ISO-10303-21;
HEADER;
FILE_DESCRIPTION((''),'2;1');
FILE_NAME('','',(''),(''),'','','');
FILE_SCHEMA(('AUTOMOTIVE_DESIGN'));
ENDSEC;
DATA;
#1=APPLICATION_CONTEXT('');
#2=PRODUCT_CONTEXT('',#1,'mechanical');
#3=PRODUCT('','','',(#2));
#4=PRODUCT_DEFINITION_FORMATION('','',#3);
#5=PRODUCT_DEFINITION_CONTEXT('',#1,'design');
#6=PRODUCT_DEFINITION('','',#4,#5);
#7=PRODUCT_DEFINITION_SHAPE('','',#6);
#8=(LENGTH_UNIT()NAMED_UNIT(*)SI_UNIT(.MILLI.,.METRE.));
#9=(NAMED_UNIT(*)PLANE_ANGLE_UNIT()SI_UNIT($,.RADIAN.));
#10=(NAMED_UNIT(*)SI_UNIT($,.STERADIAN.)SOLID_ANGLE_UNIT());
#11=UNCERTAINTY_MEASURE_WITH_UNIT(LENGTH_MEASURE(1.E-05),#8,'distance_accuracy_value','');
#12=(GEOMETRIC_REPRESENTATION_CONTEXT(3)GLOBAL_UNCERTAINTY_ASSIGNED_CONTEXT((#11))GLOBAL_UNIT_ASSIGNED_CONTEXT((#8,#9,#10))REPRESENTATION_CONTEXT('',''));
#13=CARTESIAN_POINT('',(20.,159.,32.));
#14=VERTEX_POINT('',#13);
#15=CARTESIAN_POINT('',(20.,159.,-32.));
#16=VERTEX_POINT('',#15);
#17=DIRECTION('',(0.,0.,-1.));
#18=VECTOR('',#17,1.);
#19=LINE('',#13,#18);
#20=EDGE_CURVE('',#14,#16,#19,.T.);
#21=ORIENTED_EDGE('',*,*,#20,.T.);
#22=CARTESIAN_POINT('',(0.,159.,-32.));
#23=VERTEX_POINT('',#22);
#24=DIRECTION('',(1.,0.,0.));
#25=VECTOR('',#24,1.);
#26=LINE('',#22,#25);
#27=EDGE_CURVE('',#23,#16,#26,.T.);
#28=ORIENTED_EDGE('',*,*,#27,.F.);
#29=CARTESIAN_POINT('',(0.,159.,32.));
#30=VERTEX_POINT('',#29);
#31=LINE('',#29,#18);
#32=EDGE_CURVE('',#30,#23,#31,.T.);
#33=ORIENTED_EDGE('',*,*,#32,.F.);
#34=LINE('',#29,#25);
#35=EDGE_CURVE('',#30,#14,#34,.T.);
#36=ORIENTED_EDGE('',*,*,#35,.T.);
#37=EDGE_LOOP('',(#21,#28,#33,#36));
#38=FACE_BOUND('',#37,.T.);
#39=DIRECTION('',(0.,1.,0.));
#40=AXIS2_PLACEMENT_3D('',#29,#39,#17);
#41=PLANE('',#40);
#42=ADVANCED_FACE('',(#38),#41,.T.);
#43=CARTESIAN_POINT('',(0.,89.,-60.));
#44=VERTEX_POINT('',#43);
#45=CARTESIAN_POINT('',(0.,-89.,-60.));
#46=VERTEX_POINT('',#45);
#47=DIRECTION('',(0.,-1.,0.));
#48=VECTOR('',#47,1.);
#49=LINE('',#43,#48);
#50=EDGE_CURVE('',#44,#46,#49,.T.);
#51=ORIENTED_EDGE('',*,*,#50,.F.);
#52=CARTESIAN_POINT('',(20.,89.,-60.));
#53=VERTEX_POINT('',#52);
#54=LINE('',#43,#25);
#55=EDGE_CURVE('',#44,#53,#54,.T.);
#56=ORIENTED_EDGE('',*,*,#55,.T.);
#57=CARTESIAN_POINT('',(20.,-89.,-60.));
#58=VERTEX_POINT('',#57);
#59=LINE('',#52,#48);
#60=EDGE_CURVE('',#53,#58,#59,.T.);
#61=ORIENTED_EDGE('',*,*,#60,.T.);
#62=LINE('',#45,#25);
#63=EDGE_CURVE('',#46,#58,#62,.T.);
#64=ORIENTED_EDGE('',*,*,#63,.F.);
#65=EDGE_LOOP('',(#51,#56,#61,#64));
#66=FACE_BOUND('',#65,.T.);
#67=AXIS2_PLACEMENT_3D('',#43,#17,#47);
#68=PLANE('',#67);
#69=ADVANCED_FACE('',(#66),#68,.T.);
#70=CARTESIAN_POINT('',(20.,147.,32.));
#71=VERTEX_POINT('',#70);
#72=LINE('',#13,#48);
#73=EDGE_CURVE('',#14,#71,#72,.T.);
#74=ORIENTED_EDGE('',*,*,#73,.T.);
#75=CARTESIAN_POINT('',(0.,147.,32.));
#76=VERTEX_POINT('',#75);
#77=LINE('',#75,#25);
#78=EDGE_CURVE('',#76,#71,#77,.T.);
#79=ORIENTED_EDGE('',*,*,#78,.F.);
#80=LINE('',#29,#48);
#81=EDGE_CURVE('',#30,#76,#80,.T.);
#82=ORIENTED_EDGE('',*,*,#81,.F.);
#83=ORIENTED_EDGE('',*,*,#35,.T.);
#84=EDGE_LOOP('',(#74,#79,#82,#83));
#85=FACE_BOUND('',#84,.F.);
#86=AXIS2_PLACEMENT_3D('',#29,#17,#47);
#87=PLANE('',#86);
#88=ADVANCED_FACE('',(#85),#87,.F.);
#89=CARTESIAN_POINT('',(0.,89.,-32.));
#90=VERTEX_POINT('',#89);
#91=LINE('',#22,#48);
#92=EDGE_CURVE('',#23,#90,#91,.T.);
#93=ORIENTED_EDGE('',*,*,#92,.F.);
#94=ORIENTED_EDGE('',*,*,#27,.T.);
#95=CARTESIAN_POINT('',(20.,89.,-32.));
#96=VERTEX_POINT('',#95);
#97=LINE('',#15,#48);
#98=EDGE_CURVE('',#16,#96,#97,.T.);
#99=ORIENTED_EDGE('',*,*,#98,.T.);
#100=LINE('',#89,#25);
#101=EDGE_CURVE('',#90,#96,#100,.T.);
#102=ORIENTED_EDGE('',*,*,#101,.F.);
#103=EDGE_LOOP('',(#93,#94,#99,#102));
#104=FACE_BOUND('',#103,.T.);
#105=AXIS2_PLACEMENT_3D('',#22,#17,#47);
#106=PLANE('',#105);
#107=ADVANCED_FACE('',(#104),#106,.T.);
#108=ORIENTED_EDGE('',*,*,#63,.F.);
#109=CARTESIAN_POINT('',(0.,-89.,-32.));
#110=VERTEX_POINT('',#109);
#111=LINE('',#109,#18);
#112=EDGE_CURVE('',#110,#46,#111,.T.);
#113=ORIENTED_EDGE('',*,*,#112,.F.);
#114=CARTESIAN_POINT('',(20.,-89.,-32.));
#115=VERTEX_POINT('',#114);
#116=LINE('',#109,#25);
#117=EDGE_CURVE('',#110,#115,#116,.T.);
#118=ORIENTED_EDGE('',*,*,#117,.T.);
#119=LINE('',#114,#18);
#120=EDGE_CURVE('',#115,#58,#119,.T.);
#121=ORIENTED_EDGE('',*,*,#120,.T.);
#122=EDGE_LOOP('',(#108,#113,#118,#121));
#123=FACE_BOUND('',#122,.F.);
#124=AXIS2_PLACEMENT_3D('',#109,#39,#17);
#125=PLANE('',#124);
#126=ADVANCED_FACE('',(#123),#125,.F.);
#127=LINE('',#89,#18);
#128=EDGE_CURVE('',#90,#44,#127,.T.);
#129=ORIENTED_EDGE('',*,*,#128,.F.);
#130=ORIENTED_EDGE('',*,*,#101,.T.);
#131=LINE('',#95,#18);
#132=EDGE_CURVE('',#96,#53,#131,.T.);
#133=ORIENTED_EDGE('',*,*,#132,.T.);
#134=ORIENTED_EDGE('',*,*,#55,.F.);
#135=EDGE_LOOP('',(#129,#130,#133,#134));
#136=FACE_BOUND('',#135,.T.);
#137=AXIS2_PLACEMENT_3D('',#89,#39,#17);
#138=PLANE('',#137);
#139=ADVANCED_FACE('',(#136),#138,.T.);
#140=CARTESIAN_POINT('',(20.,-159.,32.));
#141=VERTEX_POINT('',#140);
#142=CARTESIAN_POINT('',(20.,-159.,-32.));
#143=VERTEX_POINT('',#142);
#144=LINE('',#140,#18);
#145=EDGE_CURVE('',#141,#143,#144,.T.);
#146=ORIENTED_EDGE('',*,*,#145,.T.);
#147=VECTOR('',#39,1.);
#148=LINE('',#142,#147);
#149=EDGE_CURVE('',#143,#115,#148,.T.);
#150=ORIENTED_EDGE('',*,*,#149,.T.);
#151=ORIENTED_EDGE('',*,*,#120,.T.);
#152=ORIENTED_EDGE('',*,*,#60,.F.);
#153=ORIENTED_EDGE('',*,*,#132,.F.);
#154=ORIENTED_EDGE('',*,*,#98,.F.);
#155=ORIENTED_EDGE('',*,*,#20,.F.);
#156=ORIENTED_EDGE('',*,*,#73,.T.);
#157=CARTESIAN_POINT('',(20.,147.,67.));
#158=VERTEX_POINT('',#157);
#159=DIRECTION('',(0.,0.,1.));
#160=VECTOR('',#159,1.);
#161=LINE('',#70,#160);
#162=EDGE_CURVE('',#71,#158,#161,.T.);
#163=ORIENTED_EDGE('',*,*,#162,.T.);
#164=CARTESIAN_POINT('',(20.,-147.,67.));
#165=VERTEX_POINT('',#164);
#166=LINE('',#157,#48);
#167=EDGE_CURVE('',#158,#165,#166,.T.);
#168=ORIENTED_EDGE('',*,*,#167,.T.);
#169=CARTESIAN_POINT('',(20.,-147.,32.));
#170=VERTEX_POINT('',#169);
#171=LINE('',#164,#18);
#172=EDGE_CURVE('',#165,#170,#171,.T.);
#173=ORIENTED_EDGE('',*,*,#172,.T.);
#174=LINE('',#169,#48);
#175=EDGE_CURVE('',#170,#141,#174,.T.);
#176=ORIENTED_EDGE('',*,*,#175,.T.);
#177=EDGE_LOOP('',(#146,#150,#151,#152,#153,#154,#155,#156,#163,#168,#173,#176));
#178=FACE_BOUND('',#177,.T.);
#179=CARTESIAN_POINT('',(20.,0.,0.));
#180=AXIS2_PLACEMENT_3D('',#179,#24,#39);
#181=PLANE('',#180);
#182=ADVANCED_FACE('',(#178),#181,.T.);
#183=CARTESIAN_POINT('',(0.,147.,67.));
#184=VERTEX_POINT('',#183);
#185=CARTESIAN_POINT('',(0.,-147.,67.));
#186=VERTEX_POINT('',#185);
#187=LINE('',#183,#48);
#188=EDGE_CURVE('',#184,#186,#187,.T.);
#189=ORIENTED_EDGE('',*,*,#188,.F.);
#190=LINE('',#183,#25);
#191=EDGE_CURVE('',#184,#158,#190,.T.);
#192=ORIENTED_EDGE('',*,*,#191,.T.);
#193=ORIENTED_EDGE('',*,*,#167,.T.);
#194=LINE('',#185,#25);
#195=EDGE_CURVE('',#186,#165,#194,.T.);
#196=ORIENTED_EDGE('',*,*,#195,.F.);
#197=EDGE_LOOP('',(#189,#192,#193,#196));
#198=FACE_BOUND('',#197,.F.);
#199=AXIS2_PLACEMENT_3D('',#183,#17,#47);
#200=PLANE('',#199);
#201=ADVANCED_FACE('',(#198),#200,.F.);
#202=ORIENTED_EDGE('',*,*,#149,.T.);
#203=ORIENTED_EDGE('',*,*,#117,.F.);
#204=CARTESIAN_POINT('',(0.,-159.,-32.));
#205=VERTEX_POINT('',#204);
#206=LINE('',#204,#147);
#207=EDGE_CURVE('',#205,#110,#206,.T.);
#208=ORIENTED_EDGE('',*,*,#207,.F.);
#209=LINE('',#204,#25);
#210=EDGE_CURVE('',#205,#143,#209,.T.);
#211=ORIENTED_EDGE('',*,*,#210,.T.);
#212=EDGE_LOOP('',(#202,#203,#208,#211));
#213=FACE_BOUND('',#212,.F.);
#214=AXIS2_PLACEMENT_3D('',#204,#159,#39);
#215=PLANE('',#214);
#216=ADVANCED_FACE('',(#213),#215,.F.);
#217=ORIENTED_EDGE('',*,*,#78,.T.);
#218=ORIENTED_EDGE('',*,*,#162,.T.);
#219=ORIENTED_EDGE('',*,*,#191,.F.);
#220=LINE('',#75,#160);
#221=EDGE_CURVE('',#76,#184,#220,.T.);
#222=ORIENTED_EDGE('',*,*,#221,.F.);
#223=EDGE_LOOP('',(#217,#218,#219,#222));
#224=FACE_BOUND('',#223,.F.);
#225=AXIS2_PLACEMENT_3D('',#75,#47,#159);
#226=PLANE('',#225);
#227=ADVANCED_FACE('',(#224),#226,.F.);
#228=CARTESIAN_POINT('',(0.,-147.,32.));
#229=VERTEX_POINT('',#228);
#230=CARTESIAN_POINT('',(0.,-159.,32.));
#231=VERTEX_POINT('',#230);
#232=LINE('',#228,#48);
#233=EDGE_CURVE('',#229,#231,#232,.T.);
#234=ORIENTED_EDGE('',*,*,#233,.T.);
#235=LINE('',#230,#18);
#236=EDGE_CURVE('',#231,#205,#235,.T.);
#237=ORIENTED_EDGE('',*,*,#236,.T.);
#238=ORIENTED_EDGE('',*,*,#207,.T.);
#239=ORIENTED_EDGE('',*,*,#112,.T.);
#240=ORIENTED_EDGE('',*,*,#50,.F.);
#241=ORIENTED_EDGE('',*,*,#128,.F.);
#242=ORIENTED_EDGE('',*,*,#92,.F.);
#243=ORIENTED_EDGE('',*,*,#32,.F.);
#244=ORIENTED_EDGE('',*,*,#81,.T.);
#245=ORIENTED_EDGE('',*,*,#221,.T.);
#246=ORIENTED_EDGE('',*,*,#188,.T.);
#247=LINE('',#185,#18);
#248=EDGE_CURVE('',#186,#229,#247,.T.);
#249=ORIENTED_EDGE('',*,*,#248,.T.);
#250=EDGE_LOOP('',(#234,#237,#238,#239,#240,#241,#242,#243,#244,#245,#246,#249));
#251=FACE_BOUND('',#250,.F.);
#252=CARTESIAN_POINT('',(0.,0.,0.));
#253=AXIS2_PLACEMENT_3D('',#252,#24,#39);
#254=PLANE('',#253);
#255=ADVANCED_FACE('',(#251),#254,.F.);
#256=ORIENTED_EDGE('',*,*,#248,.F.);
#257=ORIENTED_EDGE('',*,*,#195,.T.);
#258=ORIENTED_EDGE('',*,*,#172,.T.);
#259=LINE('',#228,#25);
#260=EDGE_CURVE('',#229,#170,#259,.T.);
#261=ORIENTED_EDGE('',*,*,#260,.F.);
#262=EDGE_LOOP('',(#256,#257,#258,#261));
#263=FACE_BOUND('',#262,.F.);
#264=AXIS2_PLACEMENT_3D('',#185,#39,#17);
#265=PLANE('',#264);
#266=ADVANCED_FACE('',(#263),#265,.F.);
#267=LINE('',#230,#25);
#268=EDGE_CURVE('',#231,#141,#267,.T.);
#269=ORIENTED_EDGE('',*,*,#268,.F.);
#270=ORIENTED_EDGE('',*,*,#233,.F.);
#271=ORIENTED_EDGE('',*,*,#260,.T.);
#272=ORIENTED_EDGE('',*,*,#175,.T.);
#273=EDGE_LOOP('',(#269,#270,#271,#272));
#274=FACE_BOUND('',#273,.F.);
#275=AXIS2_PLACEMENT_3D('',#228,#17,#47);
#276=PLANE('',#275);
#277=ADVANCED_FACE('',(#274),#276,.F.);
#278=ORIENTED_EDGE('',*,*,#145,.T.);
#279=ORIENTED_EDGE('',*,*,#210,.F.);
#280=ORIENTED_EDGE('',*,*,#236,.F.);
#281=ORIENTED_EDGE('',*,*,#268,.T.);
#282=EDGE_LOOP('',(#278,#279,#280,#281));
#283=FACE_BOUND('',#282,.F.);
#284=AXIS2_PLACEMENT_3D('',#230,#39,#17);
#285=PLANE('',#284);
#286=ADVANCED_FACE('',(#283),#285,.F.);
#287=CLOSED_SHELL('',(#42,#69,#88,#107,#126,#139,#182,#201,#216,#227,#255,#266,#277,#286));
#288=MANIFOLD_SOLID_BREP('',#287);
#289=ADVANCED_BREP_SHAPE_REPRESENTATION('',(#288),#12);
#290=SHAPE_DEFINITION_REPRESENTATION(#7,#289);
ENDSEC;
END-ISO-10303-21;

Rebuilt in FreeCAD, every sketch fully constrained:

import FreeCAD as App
import Part
import Sketcher
Q = App.Units.Quantity


def add_polygon(sketch, points):
    """Adds a closed chain of lines whose ends are joined by coincident constraints."""
    first, n = sketch.GeometryCount, len(points)
    for a, b in zip(points, points[1:] + points[:1]):
        sketch.addGeometry(Part.LineSegment(App.Vector(*a, 0), App.Vector(*b, 0)), False)
    for i in range(n):
        sketch.addConstraint(Sketcher.Constraint("Coincident", first + i, 2, first + (i + 1) % n, 1))

doc = App.newDocument("Part")
body = doc.addObject("PartDesign::Body", "Body")

sketch1 = body.newObject("Sketcher::SketchObject", "Sketch")
sketch1.AttachmentSupport = (doc.getObject("YZ_Plane"), [""])
sketch1.MapMode = "FlatFace"
add_polygon(sketch1, [(159, -32), (159, 32), (147, 32), (147, 67), (-147, 67), (-147, 32), (-159, 32), (-159, -32), (-89, -32), (-89, -60), (89, -60), (89, -32)])
sketch1.addConstraint([
    Sketcher.Constraint("Vertical", 0),
    Sketcher.Constraint("Horizontal", 1),
    Sketcher.Constraint("Vertical", 2),
    Sketcher.Constraint("Horizontal", 3),
    Sketcher.Constraint("Vertical", 4),
    Sketcher.Constraint("Horizontal", 5),
    Sketcher.Constraint("Vertical", 6),
    Sketcher.Constraint("Horizontal", 7),
    Sketcher.Constraint("Vertical", 8),
    Sketcher.Constraint("Horizontal", 9),
    Sketcher.Constraint("Vertical", 10),
    Sketcher.Constraint("Horizontal", 11),
    Sketcher.Constraint("Symmetric", 0, 2, 6, 2, -1, 1),
    Sketcher.Constraint("Symmetric", 1, 2, 4, 2, -2),
    Sketcher.Constraint("Symmetric", 7, 2, 10, 2, -2),
    Sketcher.Constraint("DistanceX", 1, 2, 1, 1, Q("12 mm")),
    Sketcher.Constraint("DistanceX", 7, 1, 7, 2, Q("70 mm")),
    Sketcher.Constraint("DistanceX", 9, 1, 9, 2, Q("178 mm")),
    Sketcher.Constraint("DistanceY", 0, 1, 0, 2, Q("64 mm")),
    Sketcher.Constraint("DistanceY", 2, 1, 2, 2, Q("35 mm")),
    Sketcher.Constraint("DistanceY", 8, 2, 8, 1, Q("28 mm")),
])
pad1 = body.newObject("PartDesign::Pad", "Pad")
pad1.Profile = sketch1
pad1.Length = 20

doc.recompute()
